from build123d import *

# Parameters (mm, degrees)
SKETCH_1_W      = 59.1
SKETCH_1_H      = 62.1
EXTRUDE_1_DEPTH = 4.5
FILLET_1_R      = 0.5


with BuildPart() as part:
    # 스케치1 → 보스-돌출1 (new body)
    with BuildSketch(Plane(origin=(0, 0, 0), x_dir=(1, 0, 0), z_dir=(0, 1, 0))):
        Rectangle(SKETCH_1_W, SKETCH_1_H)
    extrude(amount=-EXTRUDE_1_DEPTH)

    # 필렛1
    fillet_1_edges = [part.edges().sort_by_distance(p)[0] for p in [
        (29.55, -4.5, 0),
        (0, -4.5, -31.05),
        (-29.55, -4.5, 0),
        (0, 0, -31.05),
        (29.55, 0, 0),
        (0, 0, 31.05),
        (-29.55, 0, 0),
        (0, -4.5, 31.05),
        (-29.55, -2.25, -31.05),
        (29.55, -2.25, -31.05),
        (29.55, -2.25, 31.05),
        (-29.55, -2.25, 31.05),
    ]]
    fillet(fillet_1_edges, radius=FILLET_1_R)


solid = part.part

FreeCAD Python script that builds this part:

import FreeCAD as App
import Part
import Sketcher
Q = App.Units.Quantity


def add_polygon(sketch, points):
    """Adds a closed chain of lines whose ends are joined by coincident constraints."""
    first, n = sketch.GeometryCount, len(points)
    for a, b in zip(points, points[1:] + points[:1]):
        sketch.addGeometry(Part.LineSegment(App.Vector(*a, 0), App.Vector(*b, 0)), False)
    for i in range(n):
        sketch.addConstraint(Sketcher.Constraint("Coincident", first + i, 2, first + (i + 1) % n, 1))

doc = App.newDocument("Part")
params = doc.addObject("Spreadsheet::Sheet", "Params")
for row, (alias, value) in enumerate([
    ("sketch1_width", "59.1 mm"),
    ("sketch1_height", "62.1 mm"),
    ("pad1_length", "4.5 mm"),
    ("fillet_radius", "0.5 mm"),
], start=1):
    params.set(f"A{row}", alias)
    params.set(f"B{row}", "=" + value)
    params.setAlias(f"B{row}", alias)

body = doc.addObject("PartDesign::Body", "Body")

# Sketch on XZ plane
sketch1 = body.newObject("Sketcher::SketchObject", "Sketch")
sketch1.AttachmentSupport = (doc.getObject("XZ_Plane"), [""])
sketch1.MapMode = "FlatFace"
add_polygon(sketch1, [(-30, -31), (-30, 31), (30, 31), (30, -31)])  # lines 0-3
sketch1.addConstraint([
    Sketcher.Constraint("Vertical", 0),
    Sketcher.Constraint("Horizontal", 1),
    Sketcher.Constraint("Vertical", 2),
    Sketcher.Constraint("Horizontal", 3),
    Sketcher.Constraint("Symmetric", 0, 2, 2, 2, -1, 1),
    Sketcher.Constraint("DistanceX", 1, 1, 1, 2, Q("59.1 mm")),
    Sketcher.Constraint("DistanceY", 0, 1, 0, 2, Q("62.1 mm")),
])
sketch1.setExpression("Constraints[9]", "Params.sketch1_width")
sketch1.setExpression("Constraints[10]", "Params.sketch1_height")
pad1 = body.newObject("PartDesign::Pad", "Pad")
pad1.Profile = sketch1
pad1.setExpression("Length", "Params.pad1_length")
doc.recompute()

fillet = body.newObject("PartDesign::Fillet", "Fillet")
fillet.Base = (pad1, ["Edge1"])
fillet.UseAllEdges = True
fillet.setExpression("Radius", "Params.fillet_radius")

doc.recompute()
